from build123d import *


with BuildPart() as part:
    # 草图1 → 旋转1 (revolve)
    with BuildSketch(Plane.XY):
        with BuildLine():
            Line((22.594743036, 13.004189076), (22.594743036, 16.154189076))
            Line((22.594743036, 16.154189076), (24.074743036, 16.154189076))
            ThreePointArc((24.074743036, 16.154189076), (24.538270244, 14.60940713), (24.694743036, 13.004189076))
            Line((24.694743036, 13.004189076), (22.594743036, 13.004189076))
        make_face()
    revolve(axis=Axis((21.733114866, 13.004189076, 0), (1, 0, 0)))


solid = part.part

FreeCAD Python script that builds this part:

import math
import FreeCAD as App
import Part
import Sketcher
from FreeCAD import Vector

doc = App.newDocument("Part")
body = doc.addObject("PartDesign::Body", "Body")

# Sketch on XY plane
sketch1 = body.newObject("Sketcher::SketchObject", "Sketch")
sketch1.AttachmentSupport = (doc.getObject("XY_Plane"), [""])
sketch1.MapMode = "FlatFace"
sketch1.addGeometry(Part.LineSegment(Vector(22.6, 16.2, 0), Vector(22.6, 13, 0)), False)
sketch1.addGeometry(Part.LineSegment(Vector(22.6, 13, 0), Vector(24.7, 13, 0)), False)
sketch1.addGeometry(Part.ArcOfCircle(Part.Circle(Vector(16.4, 13, 0), Vector(0, 0, 1), 8.3), math.radians(0), math.radians(22)), False)
sketch1.addGeometry(Part.LineSegment(Vector(24.1, 16.2, 0), Vector(22.6, 16.2, 0)), False)
sketch1.addGeometry(Part.LineSegment(Vector(16.4, 13, 0), Vector(24.7, 13, 0)), True)  # axis
sketch1.addConstraint(Sketcher.Constraint("Coincident", 0, 2, 1, 1))
sketch1.addConstraint(Sketcher.Constraint("Coincident", 1, 2, 2, 1))
sketch1.addConstraint(Sketcher.Constraint("Coincident", 2, 2, 3, 1))
sketch1.addConstraint(Sketcher.Constraint("Coincident", 3, 2, 0, 1))
sketch1.addConstraint(Sketcher.Constraint("Vertical", 0))
sketch1.addConstraint(Sketcher.Constraint("Horizontal", 1))
sketch1.addConstraint(Sketcher.Constraint("Horizontal", 3))
sketch1.addConstraint(Sketcher.Constraint("Horizontal", 4))
sketch1.addConstraint(Sketcher.Constraint("Coincident", 4, 1, 2, 3))
sketch1.addConstraint(Sketcher.Constraint("Coincident", 4, 2, 1, 2))
sketch1.addConstraint(Sketcher.Constraint("DistanceX", 1, 1, 1, 2, 2.1))
sketch1.addConstraint(Sketcher.Constraint("DistanceX", 3, 2, 3, 1, 1.48))
sketch1.addConstraint(Sketcher.Constraint("DistanceY", 0, 2, 0, 1, 3.15))
sketch1.addConstraint(Sketcher.Constraint("DistanceY", -1, 1, 2, 3, 13.004189))
sketch1.addConstraint(Sketcher.Constraint("DistanceX", -1, 1, 2, 3, 16.382727))
revolution = body.newObject("PartDesign::Revolution", "Revolution")
revolution.Profile = sketch1
revolution.ReferenceAxis = (sketch1, ["Axis0"])
revolution.Angle = 360

doc.recompute()
